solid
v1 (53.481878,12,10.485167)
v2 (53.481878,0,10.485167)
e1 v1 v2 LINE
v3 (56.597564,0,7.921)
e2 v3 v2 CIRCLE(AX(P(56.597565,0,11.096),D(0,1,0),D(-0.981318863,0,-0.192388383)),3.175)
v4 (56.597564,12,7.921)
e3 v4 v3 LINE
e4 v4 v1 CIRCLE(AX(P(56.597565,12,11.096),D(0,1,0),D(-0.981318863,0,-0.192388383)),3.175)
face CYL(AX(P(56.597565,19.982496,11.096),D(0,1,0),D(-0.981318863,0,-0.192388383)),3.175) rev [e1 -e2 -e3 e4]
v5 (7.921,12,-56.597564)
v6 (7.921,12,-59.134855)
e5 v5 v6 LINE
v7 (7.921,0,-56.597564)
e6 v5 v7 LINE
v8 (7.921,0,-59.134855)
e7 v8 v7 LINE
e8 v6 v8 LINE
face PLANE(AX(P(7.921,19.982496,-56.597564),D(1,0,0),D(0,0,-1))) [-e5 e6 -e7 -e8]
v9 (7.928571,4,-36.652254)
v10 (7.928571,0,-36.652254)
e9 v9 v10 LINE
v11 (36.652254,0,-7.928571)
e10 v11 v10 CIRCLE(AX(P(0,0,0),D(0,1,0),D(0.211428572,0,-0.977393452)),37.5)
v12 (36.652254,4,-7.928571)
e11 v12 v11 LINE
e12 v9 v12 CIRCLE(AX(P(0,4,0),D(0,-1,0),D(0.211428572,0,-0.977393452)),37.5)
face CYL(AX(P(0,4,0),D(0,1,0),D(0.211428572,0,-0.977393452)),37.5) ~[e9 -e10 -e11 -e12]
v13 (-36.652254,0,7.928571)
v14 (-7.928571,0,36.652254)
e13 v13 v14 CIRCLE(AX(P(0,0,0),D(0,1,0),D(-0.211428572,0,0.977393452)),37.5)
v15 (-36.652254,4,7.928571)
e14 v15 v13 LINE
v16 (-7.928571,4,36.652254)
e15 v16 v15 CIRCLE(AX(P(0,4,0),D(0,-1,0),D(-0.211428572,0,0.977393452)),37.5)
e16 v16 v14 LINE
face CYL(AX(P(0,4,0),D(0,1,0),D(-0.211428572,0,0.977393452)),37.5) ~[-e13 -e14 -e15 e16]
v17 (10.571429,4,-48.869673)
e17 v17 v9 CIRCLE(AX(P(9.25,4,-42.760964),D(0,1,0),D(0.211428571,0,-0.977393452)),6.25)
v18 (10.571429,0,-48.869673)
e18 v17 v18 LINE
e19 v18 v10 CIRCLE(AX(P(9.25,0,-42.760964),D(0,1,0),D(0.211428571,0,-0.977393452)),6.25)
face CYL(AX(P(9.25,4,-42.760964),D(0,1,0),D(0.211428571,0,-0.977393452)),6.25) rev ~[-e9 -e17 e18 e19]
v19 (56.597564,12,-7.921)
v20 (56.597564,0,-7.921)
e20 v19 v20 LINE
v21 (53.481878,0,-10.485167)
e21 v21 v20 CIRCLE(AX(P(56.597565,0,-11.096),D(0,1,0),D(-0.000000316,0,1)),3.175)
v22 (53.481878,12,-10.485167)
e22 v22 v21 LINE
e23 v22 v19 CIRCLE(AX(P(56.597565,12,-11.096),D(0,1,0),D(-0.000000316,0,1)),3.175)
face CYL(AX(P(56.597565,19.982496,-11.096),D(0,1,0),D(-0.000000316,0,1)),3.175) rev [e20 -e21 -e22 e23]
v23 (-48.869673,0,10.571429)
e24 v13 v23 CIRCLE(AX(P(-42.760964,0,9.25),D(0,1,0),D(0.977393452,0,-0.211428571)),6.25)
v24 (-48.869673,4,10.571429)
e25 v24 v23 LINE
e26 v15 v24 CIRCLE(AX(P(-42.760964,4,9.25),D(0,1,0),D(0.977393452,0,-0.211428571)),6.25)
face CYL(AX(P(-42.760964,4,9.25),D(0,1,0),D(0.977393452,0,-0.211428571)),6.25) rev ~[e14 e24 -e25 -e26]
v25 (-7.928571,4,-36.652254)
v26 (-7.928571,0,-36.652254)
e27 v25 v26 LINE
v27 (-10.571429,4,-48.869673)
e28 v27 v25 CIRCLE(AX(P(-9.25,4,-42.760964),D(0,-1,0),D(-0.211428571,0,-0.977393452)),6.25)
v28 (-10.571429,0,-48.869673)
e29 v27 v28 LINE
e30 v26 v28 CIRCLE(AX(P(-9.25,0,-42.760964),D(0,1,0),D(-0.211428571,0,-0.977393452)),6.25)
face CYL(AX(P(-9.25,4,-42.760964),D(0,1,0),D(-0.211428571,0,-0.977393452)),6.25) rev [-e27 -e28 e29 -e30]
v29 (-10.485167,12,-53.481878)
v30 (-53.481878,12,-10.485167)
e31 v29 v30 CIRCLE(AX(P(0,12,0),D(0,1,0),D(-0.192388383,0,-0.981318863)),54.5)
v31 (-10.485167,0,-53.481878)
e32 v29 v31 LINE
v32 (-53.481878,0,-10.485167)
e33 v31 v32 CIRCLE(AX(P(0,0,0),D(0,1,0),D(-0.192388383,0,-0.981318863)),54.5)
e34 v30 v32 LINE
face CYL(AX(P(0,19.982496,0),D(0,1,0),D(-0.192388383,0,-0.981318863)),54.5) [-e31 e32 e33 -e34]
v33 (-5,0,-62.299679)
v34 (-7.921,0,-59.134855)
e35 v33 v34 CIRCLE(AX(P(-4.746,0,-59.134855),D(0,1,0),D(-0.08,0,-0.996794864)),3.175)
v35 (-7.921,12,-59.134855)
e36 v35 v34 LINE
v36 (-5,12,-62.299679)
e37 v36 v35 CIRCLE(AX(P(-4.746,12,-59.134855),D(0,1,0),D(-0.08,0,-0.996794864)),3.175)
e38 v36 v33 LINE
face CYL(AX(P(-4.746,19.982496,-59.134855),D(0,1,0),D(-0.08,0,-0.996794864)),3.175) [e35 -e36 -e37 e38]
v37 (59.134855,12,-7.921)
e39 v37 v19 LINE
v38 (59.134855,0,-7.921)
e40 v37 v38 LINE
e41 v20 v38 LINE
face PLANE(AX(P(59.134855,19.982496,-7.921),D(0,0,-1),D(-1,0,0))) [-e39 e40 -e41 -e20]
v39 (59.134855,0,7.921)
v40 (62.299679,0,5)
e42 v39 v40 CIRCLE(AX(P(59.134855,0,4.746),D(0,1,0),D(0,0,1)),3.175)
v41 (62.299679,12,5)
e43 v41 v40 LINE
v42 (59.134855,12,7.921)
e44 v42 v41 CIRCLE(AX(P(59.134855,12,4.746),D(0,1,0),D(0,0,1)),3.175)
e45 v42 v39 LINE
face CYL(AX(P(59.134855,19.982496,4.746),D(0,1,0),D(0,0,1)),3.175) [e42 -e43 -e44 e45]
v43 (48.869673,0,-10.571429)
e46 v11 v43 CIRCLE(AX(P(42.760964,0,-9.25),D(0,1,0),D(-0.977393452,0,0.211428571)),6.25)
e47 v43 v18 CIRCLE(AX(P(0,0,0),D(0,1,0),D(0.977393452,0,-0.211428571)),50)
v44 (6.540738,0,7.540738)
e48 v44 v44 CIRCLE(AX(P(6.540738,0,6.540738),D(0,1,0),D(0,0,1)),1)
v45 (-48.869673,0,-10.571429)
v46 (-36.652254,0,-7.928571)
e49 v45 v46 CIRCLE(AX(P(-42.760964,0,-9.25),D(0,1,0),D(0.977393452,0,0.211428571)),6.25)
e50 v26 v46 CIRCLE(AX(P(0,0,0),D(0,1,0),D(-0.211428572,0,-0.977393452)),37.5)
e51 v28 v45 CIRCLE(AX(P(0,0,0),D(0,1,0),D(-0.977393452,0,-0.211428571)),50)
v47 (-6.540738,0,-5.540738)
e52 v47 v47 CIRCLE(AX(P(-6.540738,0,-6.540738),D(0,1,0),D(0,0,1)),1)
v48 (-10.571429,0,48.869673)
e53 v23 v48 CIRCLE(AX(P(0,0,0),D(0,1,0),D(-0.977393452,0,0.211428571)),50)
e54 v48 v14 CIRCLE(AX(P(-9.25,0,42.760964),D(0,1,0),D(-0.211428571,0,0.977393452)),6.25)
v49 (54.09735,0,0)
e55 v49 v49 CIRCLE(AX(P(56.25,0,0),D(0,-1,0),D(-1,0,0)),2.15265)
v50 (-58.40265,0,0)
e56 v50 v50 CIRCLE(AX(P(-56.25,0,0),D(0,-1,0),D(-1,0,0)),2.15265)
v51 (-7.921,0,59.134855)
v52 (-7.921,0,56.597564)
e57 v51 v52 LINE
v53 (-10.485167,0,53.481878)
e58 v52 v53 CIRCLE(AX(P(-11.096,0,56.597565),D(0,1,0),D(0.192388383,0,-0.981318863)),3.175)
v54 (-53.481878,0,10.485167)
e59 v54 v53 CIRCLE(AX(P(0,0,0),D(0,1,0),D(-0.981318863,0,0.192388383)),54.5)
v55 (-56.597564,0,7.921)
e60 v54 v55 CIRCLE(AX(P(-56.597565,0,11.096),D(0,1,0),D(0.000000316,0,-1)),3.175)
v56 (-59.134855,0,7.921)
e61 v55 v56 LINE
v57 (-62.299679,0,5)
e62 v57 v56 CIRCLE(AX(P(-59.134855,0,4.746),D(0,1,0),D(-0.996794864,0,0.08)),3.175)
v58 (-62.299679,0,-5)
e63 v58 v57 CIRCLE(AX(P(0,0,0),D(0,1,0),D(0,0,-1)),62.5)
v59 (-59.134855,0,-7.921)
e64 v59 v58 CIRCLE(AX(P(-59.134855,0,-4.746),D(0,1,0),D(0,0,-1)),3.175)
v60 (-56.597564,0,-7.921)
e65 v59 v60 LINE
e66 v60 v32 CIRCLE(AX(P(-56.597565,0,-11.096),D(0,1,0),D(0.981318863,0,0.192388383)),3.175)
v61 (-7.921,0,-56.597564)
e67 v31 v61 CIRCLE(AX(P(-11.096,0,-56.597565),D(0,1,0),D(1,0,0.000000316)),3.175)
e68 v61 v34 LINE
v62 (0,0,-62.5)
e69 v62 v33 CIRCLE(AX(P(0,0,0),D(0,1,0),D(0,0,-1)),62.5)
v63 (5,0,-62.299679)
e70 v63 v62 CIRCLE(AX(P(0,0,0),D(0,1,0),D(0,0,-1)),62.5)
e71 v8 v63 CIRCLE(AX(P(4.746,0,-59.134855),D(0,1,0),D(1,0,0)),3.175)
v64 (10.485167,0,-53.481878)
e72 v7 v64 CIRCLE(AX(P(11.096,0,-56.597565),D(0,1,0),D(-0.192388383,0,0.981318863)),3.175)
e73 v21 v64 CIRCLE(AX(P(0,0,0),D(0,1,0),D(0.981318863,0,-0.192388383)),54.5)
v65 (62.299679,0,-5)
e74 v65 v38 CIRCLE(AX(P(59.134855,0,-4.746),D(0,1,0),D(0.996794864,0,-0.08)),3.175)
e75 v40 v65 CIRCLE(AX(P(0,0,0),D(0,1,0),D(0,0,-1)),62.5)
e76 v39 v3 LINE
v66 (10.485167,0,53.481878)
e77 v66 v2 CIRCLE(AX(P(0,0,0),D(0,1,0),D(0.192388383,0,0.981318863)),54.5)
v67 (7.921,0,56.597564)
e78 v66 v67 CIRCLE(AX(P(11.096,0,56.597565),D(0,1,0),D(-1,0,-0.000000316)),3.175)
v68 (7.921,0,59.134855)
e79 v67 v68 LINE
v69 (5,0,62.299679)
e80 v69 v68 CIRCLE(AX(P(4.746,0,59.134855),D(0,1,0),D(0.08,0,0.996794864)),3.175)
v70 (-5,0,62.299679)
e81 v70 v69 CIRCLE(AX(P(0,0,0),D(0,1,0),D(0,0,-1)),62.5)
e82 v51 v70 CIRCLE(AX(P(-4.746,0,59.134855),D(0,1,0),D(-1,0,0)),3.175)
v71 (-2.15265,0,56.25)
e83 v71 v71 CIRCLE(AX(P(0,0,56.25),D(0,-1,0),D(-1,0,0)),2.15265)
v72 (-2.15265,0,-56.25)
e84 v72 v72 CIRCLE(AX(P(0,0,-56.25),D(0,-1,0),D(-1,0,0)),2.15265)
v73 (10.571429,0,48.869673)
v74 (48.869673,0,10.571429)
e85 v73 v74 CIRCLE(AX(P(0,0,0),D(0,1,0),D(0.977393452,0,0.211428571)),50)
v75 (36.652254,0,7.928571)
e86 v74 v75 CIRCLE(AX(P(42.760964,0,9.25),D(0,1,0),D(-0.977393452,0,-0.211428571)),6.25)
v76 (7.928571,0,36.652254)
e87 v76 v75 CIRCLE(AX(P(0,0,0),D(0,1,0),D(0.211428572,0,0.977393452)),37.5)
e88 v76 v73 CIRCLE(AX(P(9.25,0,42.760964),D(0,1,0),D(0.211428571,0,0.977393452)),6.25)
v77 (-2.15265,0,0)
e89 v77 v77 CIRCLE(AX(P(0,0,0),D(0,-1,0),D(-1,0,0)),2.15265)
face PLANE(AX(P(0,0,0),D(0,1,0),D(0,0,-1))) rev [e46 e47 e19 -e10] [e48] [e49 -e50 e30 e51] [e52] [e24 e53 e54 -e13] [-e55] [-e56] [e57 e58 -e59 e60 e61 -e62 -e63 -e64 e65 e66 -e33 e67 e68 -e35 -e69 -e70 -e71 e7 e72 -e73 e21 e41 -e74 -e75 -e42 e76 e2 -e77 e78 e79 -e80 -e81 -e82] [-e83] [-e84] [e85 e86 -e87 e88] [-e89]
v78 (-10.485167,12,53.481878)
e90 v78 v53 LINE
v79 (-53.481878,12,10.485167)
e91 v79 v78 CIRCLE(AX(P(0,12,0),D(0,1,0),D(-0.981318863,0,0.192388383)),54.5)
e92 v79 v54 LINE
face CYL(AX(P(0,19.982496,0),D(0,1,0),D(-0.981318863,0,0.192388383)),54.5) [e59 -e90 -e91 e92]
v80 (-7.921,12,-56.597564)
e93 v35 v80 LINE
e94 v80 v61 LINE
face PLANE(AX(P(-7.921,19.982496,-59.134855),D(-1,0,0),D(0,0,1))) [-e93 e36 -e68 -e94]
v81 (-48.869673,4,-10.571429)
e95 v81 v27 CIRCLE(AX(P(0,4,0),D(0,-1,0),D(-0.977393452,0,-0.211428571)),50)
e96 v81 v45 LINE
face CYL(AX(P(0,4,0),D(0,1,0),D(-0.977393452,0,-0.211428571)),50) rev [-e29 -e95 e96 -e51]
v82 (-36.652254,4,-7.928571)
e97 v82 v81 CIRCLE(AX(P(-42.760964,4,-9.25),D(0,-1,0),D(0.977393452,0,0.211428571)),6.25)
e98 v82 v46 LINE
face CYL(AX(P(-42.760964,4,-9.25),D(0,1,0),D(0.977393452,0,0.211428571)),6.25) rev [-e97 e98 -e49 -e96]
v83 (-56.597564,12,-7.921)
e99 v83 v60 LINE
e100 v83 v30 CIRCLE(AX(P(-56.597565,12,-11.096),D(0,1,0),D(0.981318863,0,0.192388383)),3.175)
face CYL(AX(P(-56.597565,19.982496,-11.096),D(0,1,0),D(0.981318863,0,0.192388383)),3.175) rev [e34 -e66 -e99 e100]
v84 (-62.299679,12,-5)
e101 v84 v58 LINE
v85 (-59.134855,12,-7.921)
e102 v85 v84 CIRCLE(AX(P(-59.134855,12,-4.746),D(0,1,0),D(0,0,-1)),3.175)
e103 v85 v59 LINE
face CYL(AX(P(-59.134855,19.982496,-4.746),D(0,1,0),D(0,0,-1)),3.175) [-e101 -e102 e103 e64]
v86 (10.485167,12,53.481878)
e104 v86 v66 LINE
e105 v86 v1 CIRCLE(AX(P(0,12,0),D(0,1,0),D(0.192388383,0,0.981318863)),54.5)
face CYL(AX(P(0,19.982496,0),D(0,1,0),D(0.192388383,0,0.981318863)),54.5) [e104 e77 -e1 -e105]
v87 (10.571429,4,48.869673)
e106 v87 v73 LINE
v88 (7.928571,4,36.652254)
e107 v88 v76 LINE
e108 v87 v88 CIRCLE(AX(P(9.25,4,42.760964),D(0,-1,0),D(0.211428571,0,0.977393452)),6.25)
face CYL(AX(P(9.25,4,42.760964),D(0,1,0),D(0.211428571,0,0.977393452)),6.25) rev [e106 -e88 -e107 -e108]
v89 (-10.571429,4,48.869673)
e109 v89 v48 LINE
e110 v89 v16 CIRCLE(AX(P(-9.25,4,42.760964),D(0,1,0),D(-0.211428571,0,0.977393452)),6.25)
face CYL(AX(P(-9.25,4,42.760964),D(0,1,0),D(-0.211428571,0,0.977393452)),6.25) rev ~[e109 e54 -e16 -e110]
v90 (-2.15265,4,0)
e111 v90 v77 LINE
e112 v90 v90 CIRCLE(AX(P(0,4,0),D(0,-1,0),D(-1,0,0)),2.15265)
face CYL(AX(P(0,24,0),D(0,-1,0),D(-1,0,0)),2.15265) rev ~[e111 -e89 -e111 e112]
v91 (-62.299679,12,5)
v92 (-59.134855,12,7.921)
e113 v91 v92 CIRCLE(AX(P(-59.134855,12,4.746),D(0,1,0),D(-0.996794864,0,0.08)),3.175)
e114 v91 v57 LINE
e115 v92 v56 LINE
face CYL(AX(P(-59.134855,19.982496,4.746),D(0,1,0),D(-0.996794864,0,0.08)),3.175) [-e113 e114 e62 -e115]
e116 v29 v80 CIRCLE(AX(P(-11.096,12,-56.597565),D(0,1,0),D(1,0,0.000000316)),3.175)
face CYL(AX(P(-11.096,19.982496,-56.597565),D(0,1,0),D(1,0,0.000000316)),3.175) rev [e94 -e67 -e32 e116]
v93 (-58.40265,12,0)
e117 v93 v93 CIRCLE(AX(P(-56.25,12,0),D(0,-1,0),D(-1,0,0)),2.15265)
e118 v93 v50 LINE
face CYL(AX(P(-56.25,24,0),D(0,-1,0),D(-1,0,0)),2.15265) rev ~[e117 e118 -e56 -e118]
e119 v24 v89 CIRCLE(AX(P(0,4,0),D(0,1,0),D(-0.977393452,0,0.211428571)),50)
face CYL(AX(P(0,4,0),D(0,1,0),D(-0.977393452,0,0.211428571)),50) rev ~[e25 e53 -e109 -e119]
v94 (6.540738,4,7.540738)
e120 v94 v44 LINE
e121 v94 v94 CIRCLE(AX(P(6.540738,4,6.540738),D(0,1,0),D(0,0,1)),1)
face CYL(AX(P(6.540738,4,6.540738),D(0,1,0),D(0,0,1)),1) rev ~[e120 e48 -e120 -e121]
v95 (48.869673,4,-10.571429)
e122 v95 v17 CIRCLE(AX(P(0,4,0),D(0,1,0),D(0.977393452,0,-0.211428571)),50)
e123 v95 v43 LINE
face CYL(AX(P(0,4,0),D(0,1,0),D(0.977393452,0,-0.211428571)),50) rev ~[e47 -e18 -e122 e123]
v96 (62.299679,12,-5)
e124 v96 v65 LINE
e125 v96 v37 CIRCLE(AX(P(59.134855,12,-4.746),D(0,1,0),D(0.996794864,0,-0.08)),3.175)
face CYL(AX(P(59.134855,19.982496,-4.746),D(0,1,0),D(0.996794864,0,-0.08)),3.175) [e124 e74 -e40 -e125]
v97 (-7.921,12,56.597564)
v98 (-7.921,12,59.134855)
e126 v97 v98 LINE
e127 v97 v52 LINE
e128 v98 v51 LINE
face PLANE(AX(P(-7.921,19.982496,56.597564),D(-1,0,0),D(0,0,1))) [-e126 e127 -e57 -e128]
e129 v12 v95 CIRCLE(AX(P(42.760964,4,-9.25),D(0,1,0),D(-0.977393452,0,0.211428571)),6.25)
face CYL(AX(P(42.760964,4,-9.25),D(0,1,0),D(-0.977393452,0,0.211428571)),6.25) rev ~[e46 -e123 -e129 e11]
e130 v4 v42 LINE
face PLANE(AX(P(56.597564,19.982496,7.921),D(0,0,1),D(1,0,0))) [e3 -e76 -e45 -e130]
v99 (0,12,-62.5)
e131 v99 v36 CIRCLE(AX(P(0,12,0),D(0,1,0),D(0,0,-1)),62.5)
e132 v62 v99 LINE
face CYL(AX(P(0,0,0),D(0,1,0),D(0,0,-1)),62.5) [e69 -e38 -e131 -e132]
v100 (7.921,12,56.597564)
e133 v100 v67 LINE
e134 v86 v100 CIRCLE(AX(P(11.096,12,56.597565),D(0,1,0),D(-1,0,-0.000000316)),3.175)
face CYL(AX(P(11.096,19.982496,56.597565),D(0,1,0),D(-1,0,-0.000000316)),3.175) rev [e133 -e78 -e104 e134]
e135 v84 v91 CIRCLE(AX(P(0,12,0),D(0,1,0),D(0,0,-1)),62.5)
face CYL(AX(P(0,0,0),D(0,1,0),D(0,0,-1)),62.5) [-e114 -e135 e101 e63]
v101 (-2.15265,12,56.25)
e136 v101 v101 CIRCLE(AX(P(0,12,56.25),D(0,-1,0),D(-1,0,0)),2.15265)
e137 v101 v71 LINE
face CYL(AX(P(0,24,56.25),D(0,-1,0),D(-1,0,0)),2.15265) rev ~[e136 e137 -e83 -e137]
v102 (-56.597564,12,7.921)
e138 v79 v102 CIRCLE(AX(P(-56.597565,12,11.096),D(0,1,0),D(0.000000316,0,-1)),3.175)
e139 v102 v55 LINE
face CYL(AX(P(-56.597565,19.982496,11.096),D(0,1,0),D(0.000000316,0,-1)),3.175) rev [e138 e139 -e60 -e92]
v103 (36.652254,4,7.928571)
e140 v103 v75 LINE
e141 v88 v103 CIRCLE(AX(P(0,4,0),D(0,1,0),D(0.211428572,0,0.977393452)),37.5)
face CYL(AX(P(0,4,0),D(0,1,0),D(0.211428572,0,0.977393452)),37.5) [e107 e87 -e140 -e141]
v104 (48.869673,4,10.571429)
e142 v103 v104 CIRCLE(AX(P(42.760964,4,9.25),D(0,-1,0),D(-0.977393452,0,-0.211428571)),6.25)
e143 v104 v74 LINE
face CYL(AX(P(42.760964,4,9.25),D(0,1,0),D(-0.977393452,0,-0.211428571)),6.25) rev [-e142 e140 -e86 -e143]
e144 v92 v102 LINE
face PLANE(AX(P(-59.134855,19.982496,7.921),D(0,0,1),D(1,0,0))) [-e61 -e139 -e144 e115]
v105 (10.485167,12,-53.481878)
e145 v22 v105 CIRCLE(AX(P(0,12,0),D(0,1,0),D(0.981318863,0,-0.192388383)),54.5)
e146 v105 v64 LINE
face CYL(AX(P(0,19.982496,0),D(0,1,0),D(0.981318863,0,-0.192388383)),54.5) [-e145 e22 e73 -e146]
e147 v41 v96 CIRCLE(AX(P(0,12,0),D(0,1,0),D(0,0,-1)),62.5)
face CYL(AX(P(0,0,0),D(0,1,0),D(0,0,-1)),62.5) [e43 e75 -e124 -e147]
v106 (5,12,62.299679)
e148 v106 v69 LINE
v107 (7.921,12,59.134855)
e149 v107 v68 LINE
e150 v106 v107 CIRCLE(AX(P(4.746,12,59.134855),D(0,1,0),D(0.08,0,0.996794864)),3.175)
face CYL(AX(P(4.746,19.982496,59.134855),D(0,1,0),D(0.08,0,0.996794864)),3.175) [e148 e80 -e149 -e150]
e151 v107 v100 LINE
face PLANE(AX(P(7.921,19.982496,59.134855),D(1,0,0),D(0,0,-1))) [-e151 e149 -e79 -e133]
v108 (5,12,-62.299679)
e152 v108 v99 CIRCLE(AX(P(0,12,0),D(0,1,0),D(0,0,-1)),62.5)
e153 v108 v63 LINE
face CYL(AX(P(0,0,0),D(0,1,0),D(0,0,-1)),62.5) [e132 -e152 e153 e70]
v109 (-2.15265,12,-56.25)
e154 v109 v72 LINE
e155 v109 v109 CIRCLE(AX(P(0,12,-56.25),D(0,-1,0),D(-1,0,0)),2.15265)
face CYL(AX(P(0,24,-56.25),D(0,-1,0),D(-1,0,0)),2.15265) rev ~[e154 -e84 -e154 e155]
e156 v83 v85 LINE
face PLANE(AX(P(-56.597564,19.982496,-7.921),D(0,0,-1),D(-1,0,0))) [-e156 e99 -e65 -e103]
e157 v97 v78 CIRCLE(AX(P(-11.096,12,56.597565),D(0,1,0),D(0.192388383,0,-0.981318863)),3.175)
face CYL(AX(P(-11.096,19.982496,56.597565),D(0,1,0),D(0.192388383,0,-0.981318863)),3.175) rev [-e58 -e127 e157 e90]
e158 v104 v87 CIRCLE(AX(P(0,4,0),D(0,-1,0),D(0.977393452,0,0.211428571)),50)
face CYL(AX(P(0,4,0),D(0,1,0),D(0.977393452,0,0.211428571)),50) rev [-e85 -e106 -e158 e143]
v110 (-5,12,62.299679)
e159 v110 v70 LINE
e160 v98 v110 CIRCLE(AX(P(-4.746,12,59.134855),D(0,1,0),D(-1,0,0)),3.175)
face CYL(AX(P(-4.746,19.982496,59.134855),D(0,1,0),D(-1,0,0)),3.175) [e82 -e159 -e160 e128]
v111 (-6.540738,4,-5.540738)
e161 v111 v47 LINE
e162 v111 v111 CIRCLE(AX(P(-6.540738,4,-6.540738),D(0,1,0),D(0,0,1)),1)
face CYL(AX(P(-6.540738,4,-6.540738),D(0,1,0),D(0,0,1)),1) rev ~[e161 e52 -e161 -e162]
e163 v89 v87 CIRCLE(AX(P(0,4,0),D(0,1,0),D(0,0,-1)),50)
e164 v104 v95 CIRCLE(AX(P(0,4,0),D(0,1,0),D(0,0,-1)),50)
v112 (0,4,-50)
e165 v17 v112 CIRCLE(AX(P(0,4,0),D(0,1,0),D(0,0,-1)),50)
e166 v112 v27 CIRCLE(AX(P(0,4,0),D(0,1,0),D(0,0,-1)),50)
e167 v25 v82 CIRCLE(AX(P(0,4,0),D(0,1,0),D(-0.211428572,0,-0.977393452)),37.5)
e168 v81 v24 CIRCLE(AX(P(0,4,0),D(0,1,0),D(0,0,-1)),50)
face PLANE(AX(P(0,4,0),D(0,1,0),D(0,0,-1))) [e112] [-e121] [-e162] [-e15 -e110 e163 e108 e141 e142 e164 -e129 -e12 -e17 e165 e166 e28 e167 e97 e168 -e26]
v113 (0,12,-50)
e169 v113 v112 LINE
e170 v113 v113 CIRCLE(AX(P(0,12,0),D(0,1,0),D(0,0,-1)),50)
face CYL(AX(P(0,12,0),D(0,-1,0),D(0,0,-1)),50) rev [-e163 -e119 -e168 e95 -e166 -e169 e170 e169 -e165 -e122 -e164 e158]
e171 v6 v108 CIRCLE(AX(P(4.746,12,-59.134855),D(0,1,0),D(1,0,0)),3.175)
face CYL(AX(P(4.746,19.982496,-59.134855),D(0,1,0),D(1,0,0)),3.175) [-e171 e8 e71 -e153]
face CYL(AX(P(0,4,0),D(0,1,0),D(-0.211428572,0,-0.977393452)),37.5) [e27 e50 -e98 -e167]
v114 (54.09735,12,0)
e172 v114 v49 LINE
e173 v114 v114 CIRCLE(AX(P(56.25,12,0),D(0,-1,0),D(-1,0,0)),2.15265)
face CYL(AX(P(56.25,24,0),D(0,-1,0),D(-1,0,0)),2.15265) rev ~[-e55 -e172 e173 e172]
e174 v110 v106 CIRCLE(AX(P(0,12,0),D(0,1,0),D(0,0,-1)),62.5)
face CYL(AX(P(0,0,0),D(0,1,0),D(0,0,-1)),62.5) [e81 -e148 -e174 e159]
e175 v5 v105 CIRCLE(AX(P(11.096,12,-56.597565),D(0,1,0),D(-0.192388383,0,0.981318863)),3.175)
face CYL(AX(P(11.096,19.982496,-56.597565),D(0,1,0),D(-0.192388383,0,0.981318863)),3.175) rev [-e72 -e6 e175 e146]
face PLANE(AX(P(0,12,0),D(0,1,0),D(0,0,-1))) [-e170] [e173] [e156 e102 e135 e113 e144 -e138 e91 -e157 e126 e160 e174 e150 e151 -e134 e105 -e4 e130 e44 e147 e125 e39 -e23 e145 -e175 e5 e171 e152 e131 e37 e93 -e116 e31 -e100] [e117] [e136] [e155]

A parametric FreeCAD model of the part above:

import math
import FreeCAD as App
import Part
import Sketcher


def add_polygon(sketch, points):
    """Adds a closed chain of lines whose ends are joined by coincident constraints."""
    first, n = sketch.GeometryCount, len(points)
    for a, b in zip(points, points[1:] + points[:1]):
        sketch.addGeometry(Part.LineSegment(App.Vector(*a, 0), App.Vector(*b, 0)), False)
    for i in range(n):
        sketch.addConstraint(Sketcher.Constraint("Coincident", first + i, 2, first + (i + 1) % n, 1))

doc = App.newDocument("Part")
params = doc.addObject("Spreadsheet::Sheet", "Params")
for row, (alias, value) in enumerate([
    ("sketch1_width", "50 mm"),
    ("sketch1_height", "12 mm"),
    ("sketch1_height2", "8 mm"),
    ("sketch1_width2", "62.5 mm"),
    ("revolution_angle", "360 deg"),
    ("sketch2_diameter", "4 mm"),
    ("sketch3_diameter", "2 mm"),
    ("sketch4_diameter", "2 mm"),
    ("sketch5_radius", "50 mm"),
    ("sketch5_radius2", "37.5 mm"),
    ("sketch6_radius", "50 mm"),
    ("sketch6_radius2", "37.5 mm"),
    ("sketch7_radius", "50 mm"),
    ("sketch7_radius2", "37.5 mm"),
    ("sketch8_radius", "50 mm"),
    ("sketch8_radius2", "37.5 mm"),
    ("hole_diameter", "4.3053 mm"),
    ("hole_depth", "12 mm"),
    ("sketch10_radius", "54.5 mm"),
    ("sketch10_radius2", "62.5 mm"),
    ("pocket8_length", "28 mm"),
], start=1):
    params.set(f"A{row}", alias)
    params.set(f"B{row}", "=" + value)
    params.setAlias(f"B{row}", alias)

body = doc.addObject("PartDesign::Body", "Body")

# Sketch on XY plane
sketch1 = body.newObject("Sketcher::SketchObject", "Sketch")
sketch1.AttachmentSupport = (doc.getObject("XY_Plane"), [""])
sketch1.MapMode = "FlatFace"
add_polygon(sketch1, [(0, 0), (62.5, 0), (62.5, 12), (50, 12), (50, 4), (0, 4)])  # lines 0-5
sketch1.addConstraint([
    Sketcher.Constraint("Horizontal", 0),
    Sketcher.Constraint("Vertical", 1),
    Sketcher.Constraint("Horizontal", 2),
    Sketcher.Constraint("Vertical", 3),
    Sketcher.Constraint("Horizontal", 4),
    Sketcher.Constraint("Vertical", 5),
    Sketcher.Constraint("Coincident", 5, 2, -1, 1),
    Sketcher.Constraint("DistanceX", 4, 2, 4, 1, 50.0),
    Sketcher.Constraint("DistanceY", 1, 1, 1, 2, 12.0),
    Sketcher.Constraint("DistanceY", 3, 2, 3, 1, 8.0),
    Sketcher.Constraint("DistanceX", 0, 1, 0, 2, 62.5),
])
sketch1.setExpression("Constraints[13]", "Params.sketch1_width")
sketch1.setExpression("Constraints[14]", "Params.sketch1_height")
sketch1.setExpression("Constraints[15]", "Params.sketch1_height2")
sketch1.setExpression("Constraints[16]", "Params.sketch1_width2")
revolution = body.newObject("PartDesign::Revolution", "Revolution")
revolution.Profile = sketch1
revolution.ReferenceAxis = (sketch1, ["V_Axis"])
revolution.setExpression("Angle", "Params.revolution_angle")

# Sketch on XZ plane
sketch2 = body.newObject("Sketcher::SketchObject", "Sketch001")
sketch2.AttachmentSupport = (doc.getObject("XZ_Plane"), [""])
sketch2.MapMode = "FlatFace"
sketch2.AttachmentOffset = App.Placement(App.Vector(0, 0, -4), App.Rotation())
sketch2.addGeometry(Part.Circle(App.Vector(0, 0, 0), App.Vector(0, 0, 1), 2), False)
sketch2.addConstraint([
    Sketcher.Constraint("Coincident", 0, 3, -1, 1),
    Sketcher.Constraint("Diameter", 0, 4.0),
])
sketch2.setExpression("Constraints[1]", "Params.sketch2_diameter")
pocket1 = body.newObject("PartDesign::Pocket", "Pocket")
pocket1.Profile = sketch2
pocket1.Type = "UpToFirst"
pocket1.Reversed = True

# Sketch on XZ plane
sketch3 = body.newObject("Sketcher::SketchObject", "Sketch002")
sketch3.AttachmentSupport = (doc.getObject("XZ_Plane"), [""])
sketch3.MapMode = "FlatFace"
sketch3.AttachmentOffset = App.Placement(App.Vector(0, 0, -4), App.Rotation())
sketch3.addGeometry(Part.Circle(App.Vector(6.5, 6.5, 0), App.Vector(0, 0, 1), 1), False)
sketch3.addConstraint([
    Sketcher.Constraint("Diameter", 0, 2.0),
    Sketcher.Constraint("DistanceX", -1, 1, 0, 3, 6.540738),
    Sketcher.Constraint("DistanceY", -1, 1, 0, 3, 6.540738),
])
sketch3.setExpression("Constraints[0]", "Params.sketch3_diameter")
pocket2 = body.newObject("PartDesign::Pocket", "Pocket001")
pocket2.Profile = sketch3
pocket2.Type = "UpToFirst"
pocket2.Reversed = True

# Sketch on XZ plane
sketch4 = body.newObject("Sketcher::SketchObject", "Sketch003")
sketch4.AttachmentSupport = (doc.getObject("XZ_Plane"), [""])
sketch4.MapMode = "FlatFace"
sketch4.AttachmentOffset = App.Placement(App.Vector(0, 0, -4), App.Rotation())
sketch4.addGeometry(Part.Circle(App.Vector(-6.5, -6.5, 0), App.Vector(0, 0, 1), 1), False)
sketch4.addConstraint([
    Sketcher.Constraint("Diameter", 0, 2.0),
    Sketcher.Constraint("DistanceX", 0, 3, -1, 1, 6.540738),
    Sketcher.Constraint("DistanceY", 0, 3, -1, 1, 6.540738),
])
sketch4.setExpression("Constraints[0]", "Params.sketch4_diameter")
pocket3 = body.newObject("PartDesign::Pocket", "Pocket002")
pocket3.Profile = sketch4
pocket3.Type = "UpToFirst"
pocket3.Reversed = True

# Sketch on XZ plane
sketch5 = body.newObject("Sketcher::SketchObject", "Sketch004")
sketch5.AttachmentSupport = (doc.getObject("XZ_Plane"), [""])
sketch5.MapMode = "FlatFace"
sketch5.AttachmentOffset = App.Placement(App.Vector(0, 0, -4), App.Rotation())
sketch5.addGeometry([
    Part.ArcOfCircle(Part.Circle(App.Vector(0, 0, 0), App.Vector(0, 0, 1), 50), math.radians(-78), math.radians(-12)),
    Part.ArcOfCircle(Part.Circle(App.Vector(9, -43, 0), App.Vector(0, 0, 1), 6), math.radians(102), math.radians(282)),
    Part.ArcOfCircle(Part.Circle(App.Vector(0, 0, 0), App.Vector(0, 0, 1), 38), math.radians(-78), math.radians(-12)),
    Part.ArcOfCircle(Part.Circle(App.Vector(43, -9, 0), App.Vector(0, 0, 1), 6), math.radians(-12), math.radians(168)),
], False)
sketch5.addConstraint([
    Sketcher.Constraint("Tangent", 0, 1, 1, 2),
    Sketcher.Constraint("Tangent", 1, 1, 2, 1),
    Sketcher.Constraint("Tangent", 2, 2, 3, 2),
    Sketcher.Constraint("Tangent", 3, 1, 0, 2),
    Sketcher.Constraint("Coincident", 0, 3, -1, 1),
    Sketcher.Constraint("Coincident", 2, 3, -1, 1),
    Sketcher.Constraint("Radius", 0, 50.0),
    Sketcher.Constraint("Radius", 2, 37.5),
    Sketcher.Constraint("DistanceX", -1, 1, 1, 3, 9.25),
    Sketcher.Constraint("DistanceY", 3, 3, -1, 1, 9.25),
])
sketch5.setExpression("Constraints[6]", "Params.sketch5_radius")
sketch5.setExpression("Constraints[7]", "Params.sketch5_radius2")
pocket4 = body.newObject("PartDesign::Pocket", "Pocket003")
pocket4.Profile = sketch5
pocket4.Type = "UpToFirst"
pocket4.Reversed = True

# Sketch on XZ plane
sketch6 = body.newObject("Sketcher::SketchObject", "Sketch005")
sketch6.AttachmentSupport = (doc.getObject("XZ_Plane"), [""])
sketch6.MapMode = "FlatFace"
sketch6.AttachmentOffset = App.Placement(App.Vector(0, 0, -4), App.Rotation())
sketch6.addGeometry([
    Part.ArcOfCircle(Part.Circle(App.Vector(0, 0, 0), App.Vector(0, 0, 1), 50), math.radians(-168), math.radians(-102)),
    Part.ArcOfCircle(Part.Circle(App.Vector(-43, -9, 0), App.Vector(0, 0, 1), 6), math.radians(12), math.radians(192)),
    Part.ArcOfCircle(Part.Circle(App.Vector(0, 0, 0), App.Vector(0, 0, 1), 38), math.radians(-168), math.radians(-102)),
    Part.ArcOfCircle(Part.Circle(App.Vector(-9, -43, 0), App.Vector(0, 0, 1), 6), math.radians(-102), math.radians(78)),
], False)
sketch6.addConstraint([
    Sketcher.Constraint("Tangent", 0, 1, 1, 2),
    Sketcher.Constraint("Tangent", 1, 1, 2, 1),
    Sketcher.Constraint("Tangent", 2, 2, 3, 2),
    Sketcher.Constraint("Tangent", 3, 1, 0, 2),
    Sketcher.Constraint("Coincident", 0, 3, -1, 1),
    Sketcher.Constraint("Coincident", 2, 3, -1, 1),
    Sketcher.Constraint("Radius", 0, 50.0),
    Sketcher.Constraint("Radius", 2, 37.5),
    Sketcher.Constraint("DistanceY", 1, 3, -1, 1, 9.25),
    Sketcher.Constraint("DistanceX", 3, 3, -1, 1, 9.25),
])
sketch6.setExpression("Constraints[6]", "Params.sketch6_radius")
sketch6.setExpression("Constraints[7]", "Params.sketch6_radius2")
pocket5 = body.newObject("PartDesign::Pocket", "Pocket004")
pocket5.Profile = sketch6
pocket5.Type = "UpToFirst"
pocket5.Reversed = True

# Sketch on XZ plane
sketch7 = body.newObject("Sketcher::SketchObject", "Sketch006")
sketch7.AttachmentSupport = (doc.getObject("XZ_Plane"), [""])
sketch7.MapMode = "FlatFace"
sketch7.AttachmentOffset = App.Placement(App.Vector(0, 0, -4), App.Rotation())
sketch7.addGeometry([
    Part.ArcOfCircle(Part.Circle(App.Vector(0, 0, 0), App.Vector(0, 0, 1), 50), math.radians(12), math.radians(78)),
    Part.ArcOfCircle(Part.Circle(App.Vector(43, 9, 0), App.Vector(0, 0, 1), 6), math.radians(-168), math.radians(12)),
    Part.ArcOfCircle(Part.Circle(App.Vector(0, 0, 0), App.Vector(0, 0, 1), 38), math.radians(12), math.radians(78)),
    Part.ArcOfCircle(Part.Circle(App.Vector(9, 43, 0), App.Vector(0, 0, 1), 6), math.radians(78), math.radians(258)),
], False)
sketch7.addConstraint([
    Sketcher.Constraint("Tangent", 0, 1, 1, 2),
    Sketcher.Constraint("Tangent", 1, 1, 2, 1),
    Sketcher.Constraint("Tangent", 2, 2, 3, 2),
    Sketcher.Constraint("Tangent", 3, 1, 0, 2),
    Sketcher.Constraint("Coincident", 0, 3, -1, 1),
    Sketcher.Constraint("Coincident", 2, 3, -1, 1),
    Sketcher.Constraint("Radius", 0, 50.0),
    Sketcher.Constraint("Radius", 2, 37.5),
    Sketcher.Constraint("DistanceY", -1, 1, 1, 3, 9.25),
    Sketcher.Constraint("DistanceX", -1, 1, 3, 3, 9.25),
])
sketch7.setExpression("Constraints[6]", "Params.sketch7_radius")
sketch7.setExpression("Constraints[7]", "Params.sketch7_radius2")
pocket6 = body.newObject("PartDesign::Pocket", "Pocket005")
pocket6.Profile = sketch7
pocket6.Type = "UpToFirst"
pocket6.Reversed = True

# Sketch on XZ plane
sketch8 = body.newObject("Sketcher::SketchObject", "Sketch007")
sketch8.AttachmentSupport = (doc.getObject("XZ_Plane"), [""])
sketch8.MapMode = "FlatFace"
sketch8.AttachmentOffset = App.Placement(App.Vector(0, 0, -4), App.Rotation())
sketch8.addGeometry([
    Part.ArcOfCircle(Part.Circle(App.Vector(0, 0, 0), App.Vector(0, 0, 1), 50), math.radians(102), math.radians(168)),
    Part.ArcOfCircle(Part.Circle(App.Vector(-9, 43, 0), App.Vector(0, 0, 1), 6), math.radians(-78), math.radians(102)),
    Part.ArcOfCircle(Part.Circle(App.Vector(0, 0, 0), App.Vector(0, 0, 1), 38), math.radians(102), math.radians(168)),
    Part.ArcOfCircle(Part.Circle(App.Vector(-43, 9, 0), App.Vector(0, 0, 1), 6), math.radians(168), math.radians(348)),
], False)
sketch8.addConstraint([
    Sketcher.Constraint("Tangent", 0, 1, 1, 2),
    Sketcher.Constraint("Tangent", 1, 1, 2, 1),
    Sketcher.Constraint("Tangent", 2, 2, 3, 2),
    Sketcher.Constraint("Tangent", 3, 1, 0, 2),
    Sketcher.Constraint("Coincident", 0, 3, -1, 1),
    Sketcher.Constraint("Coincident", 2, 3, -1, 1),
    Sketcher.Constraint("Radius", 0, 50.0),
    Sketcher.Constraint("Radius", 2, 37.5),
    Sketcher.Constraint("DistanceX", 1, 3, -1, 1, 9.25),
    Sketcher.Constraint("DistanceY", -1, 1, 3, 3, 9.25),
])
sketch8.setExpression("Constraints[6]", "Params.sketch8_radius")
sketch8.setExpression("Constraints[7]", "Params.sketch8_radius2")
pocket7 = body.newObject("PartDesign::Pocket", "Pocket006")
pocket7.Profile = sketch8
pocket7.Type = "UpToFirst"
pocket7.Reversed = True

# Sketch on XZ plane
sketch9 = body.newObject("Sketcher::SketchObject", "Sketch008")
sketch9.AttachmentSupport = (doc.getObject("XZ_Plane"), [""])
sketch9.MapMode = "FlatFace"
sketch9.AttachmentOffset = App.Placement(App.Vector(0, 0, -12), App.Rotation())
sketch9.addGeometry([
    Part.Circle(App.Vector(0, -56.2, 0), App.Vector(0, 0, 1), 2.2),  # 0
    Part.Circle(App.Vector(56.2, 0, 0), App.Vector(0, 0, 1), 2.2),  # 1
    Part.Circle(App.Vector(0, 56.2, 0), App.Vector(0, 0, 1), 2.2),  # 2
    Part.Circle(App.Vector(-56.2, 0, 0), App.Vector(0, 0, 1), 2.2),  # 3
    Part.Circle(App.Vector(0, 0, 0), App.Vector(0, 0, 1), 2.2),  # 4
], False)
sketch9.addConstraint([
    Sketcher.Constraint("Coincident", 4, 3, -1, 1),
    Sketcher.Constraint("Equal", 0, 1),
    Sketcher.Constraint("Equal", 1, 2),
    Sketcher.Constraint("Equal", 2, 3),
    Sketcher.Constraint("Equal", 3, 4),
    Sketcher.Constraint("Symmetric", 0, 3, 2, 3, -1, 1),
    Sketcher.Constraint("Symmetric", 1, 3, 3, 3, -1, 1),
    Sketcher.Constraint("PointOnObject", 0, 3, -2),
    Sketcher.Constraint("PointOnObject", 1, 3, -1),
    Sketcher.Constraint("Diameter", 0, 4.3053),
    Sketcher.Constraint("DistanceY", 0, 3, 2, 3, 112.5),
    Sketcher.Constraint("DistanceX", 3, 3, 1, 3, 112.5),
])
doc.recompute()
hole = body.newObject("PartDesign::Hole", "Hole")
hole.Profile = sketch9
hole.ThreadType = "None"
hole.setExpression("Diameter", "Params.hole_diameter")
hole.DepthType = "Dimension"
hole.setExpression("Depth", "Params.hole_depth")
hole.DrillPoint = "Flat"
hole.Reversed = True

# Sketch on XZ plane
sketch10 = body.newObject("Sketcher::SketchObject", "Sketch009")
sketch10.AttachmentSupport = (doc.getObject("XZ_Plane"), [""])
sketch10.MapMode = "FlatFace"
sketch10.AttachmentOffset = App.Placement(App.Vector(0, 0, -19.982496), App.Rotation())
sketch10.addGeometry([
    Part.LineSegment(App.Vector(-59.1, -7.9, 0), App.Vector(-56.6, -7.9, 0)),  # 0
    Part.ArcOfCircle(Part.Circle(App.Vector(-56.6, -11.1, 0), App.Vector(0, 0, 1), 3.2), math.radians(11), math.radians(90)),  # 1
    Part.ArcOfCircle(Part.Circle(App.Vector(0, 0, 0), App.Vector(0, 0, 1), 54.5), math.radians(-169), math.radians(-101)),  # 2
    Part.ArcOfCircle(Part.Circle(App.Vector(-11.1, -56.6, 0), App.Vector(0, 0, 1), 3.2), math.radians(0), math.radians(79)),  # 3
    Part.LineSegment(App.Vector(-7.9, -56.6, 0), App.Vector(-7.9, -59.1, 0)),  # 4
    Part.ArcOfCircle(Part.Circle(App.Vector(-4.7, -59.1, 0), App.Vector(0, 0, 1), 3.2), math.radians(180), math.radians(265)),  # 5
    Part.ArcOfCircle(Part.Circle(App.Vector(0, 0, 0), App.Vector(0, 0, 1), 62.5), math.radians(-175), math.radians(-95)),  # 6
    Part.ArcOfCircle(Part.Circle(App.Vector(-59.1, -4.7, 0), App.Vector(0, 0, 1), 3.2), math.radians(-175), math.radians(-90)),  # 7
    Part.LineSegment(App.Vector(7.9, -59.1, 0), App.Vector(7.9, -56.6, 0)),  # 8
    Part.ArcOfCircle(Part.Circle(App.Vector(11.1, -56.6, 0), App.Vector(0, 0, 1), 3.2), math.radians(101), math.radians(180)),  # 9
    Part.ArcOfCircle(Part.Circle(App.Vector(0, 0, 0), App.Vector(0, 0, 1), 54.5), math.radians(-79), math.radians(-11)),  # 10
    Part.ArcOfCircle(Part.Circle(App.Vector(56.6, -11.1, 0), App.Vector(0, 0, 1), 3.2), math.radians(90), math.radians(169)),  # 11
    Part.LineSegment(App.Vector(56.6, -7.9, 0), App.Vector(59.1, -7.9, 0)),  # 12
    Part.ArcOfCircle(Part.Circle(App.Vector(59.1, -4.7, 0), App.Vector(0, 0, 1), 3.2), math.radians(-90), math.radians(-5)),  # 13
    Part.ArcOfCircle(Part.Circle(App.Vector(0, 0, 0), App.Vector(0, 0, 1), 62.5), math.radians(-85), math.radians(-5)),  # 14
    Part.ArcOfCircle(Part.Circle(App.Vector(4.7, -59.1, 0), App.Vector(0, 0, 1), 3.2), math.radians(-85), math.radians(0)),  # 15
    Part.LineSegment(App.Vector(59.1, 7.9, 0), App.Vector(56.6, 7.9, 0)),  # 16
    Part.ArcOfCircle(Part.Circle(App.Vector(56.6, 11.1, 0), App.Vector(0, 0, 1), 3.2), math.radians(-169), math.radians(-90)),  # 17
    Part.ArcOfCircle(Part.Circle(App.Vector(0, 0, 0), App.Vector(0, 0, 1), 54.5), math.radians(11), math.radians(79)),  # 18
    Part.ArcOfCircle(Part.Circle(App.Vector(11.1, 56.6, 0), App.Vector(0, 0, 1), 3.2), math.radians(-180), math.radians(-101)),  # 19
    Part.LineSegment(App.Vector(7.9, 56.6, 0), App.Vector(7.9, 59.1, 0)),  # 20
    Part.ArcOfCircle(Part.Circle(App.Vector(4.7, 59.1, 0), App.Vector(0, 0, 1), 3.2), math.radians(0), math.radians(85)),  # 21
    Part.ArcOfCircle(Part.Circle(App.Vector(0, 0, 0), App.Vector(0, 0, 1), 62.5), math.radians(5), math.radians(85)),  # 22
    Part.ArcOfCircle(Part.Circle(App.Vector(59.1, 4.7, 0), App.Vector(0, 0, 1), 3.2), math.radians(5), math.radians(90)),  # 23
    Part.LineSegment(App.Vector(-7.9, 59.1, 0), App.Vector(-7.9, 56.6, 0)),  # 24
    Part.ArcOfCircle(Part.Circle(App.Vector(-11.1, 56.6, 0), App.Vector(0, 0, 1), 3.2), math.radians(-79), math.radians(0)),  # 25
    Part.ArcOfCircle(Part.Circle(App.Vector(0, 0, 0), App.Vector(0, 0, 1), 54.5), math.radians(101), math.radians(169)),  # 26
    Part.ArcOfCircle(Part.Circle(App.Vector(-56.6, 11.1, 0), App.Vector(0, 0, 1), 3.2), math.radians(-90), math.radians(-11)),  # 27
    Part.LineSegment(App.Vector(-56.6, 7.9, 0), App.Vector(-59.1, 7.9, 0)),  # 28
    Part.ArcOfCircle(Part.Circle(App.Vector(-59.1, 4.7, 0), App.Vector(0, 0, 1), 3.2), math.radians(90), math.radians(175)),  # 29
    Part.ArcOfCircle(Part.Circle(App.Vector(0, 0, 0), App.Vector(0, 0, 1), 62.5), math.radians(95), math.radians(175)),  # 30
    Part.ArcOfCircle(Part.Circle(App.Vector(-4.7, 59.1, 0), App.Vector(0, 0, 1), 3.2), math.radians(95), math.radians(180)),  # 31
], False)
sketch10.addConstraint([
    Sketcher.Constraint("Tangent", 0, 2, 1, 2),
    Sketcher.Constraint("Tangent", 1, 1, 2, 1),
    Sketcher.Constraint("Tangent", 2, 2, 3, 2),
    Sketcher.Constraint("Tangent", 3, 1, 4, 1),
    Sketcher.Constraint("Tangent", 4, 2, 5, 1),
    Sketcher.Constraint("Tangent", 5, 2, 6, 2),
    Sketcher.Constraint("Tangent", 6, 1, 7, 1),
    Sketcher.Constraint("Tangent", 7, 2, 0, 1),
    Sketcher.Constraint("Tangent", 8, 2, 9, 2),
    Sketcher.Constraint("Tangent", 9, 1, 10, 1),
    Sketcher.Constraint("Tangent", 10, 2, 11, 2),
    Sketcher.Constraint("Tangent", 11, 1, 12, 1),
    Sketcher.Constraint("Tangent", 12, 2, 13, 1),
    Sketcher.Constraint("Tangent", 13, 2, 14, 2),
    Sketcher.Constraint("Tangent", 14, 1, 15, 1),
    Sketcher.Constraint("Tangent", 15, 2, 8, 1),
    Sketcher.Constraint("Tangent", 16, 2, 17, 2),
    Sketcher.Constraint("Tangent", 17, 1, 18, 1),
    Sketcher.Constraint("Tangent", 18, 2, 19, 2),
    Sketcher.Constraint("Tangent", 19, 1, 20, 1),
    Sketcher.Constraint("Tangent", 20, 2, 21, 1),
    Sketcher.Constraint("Tangent", 21, 2, 22, 2),
    Sketcher.Constraint("Tangent", 22, 1, 23, 1),
    Sketcher.Constraint("Tangent", 23, 2, 16, 1),
    Sketcher.Constraint("Tangent", 24, 2, 25, 2),
    Sketcher.Constraint("Tangent", 25, 1, 26, 1),
    Sketcher.Constraint("Tangent", 26, 2, 27, 2),
    Sketcher.Constraint("Tangent", 27, 1, 28, 1),
    Sketcher.Constraint("Tangent", 28, 2, 29, 1),
    Sketcher.Constraint("Tangent", 29, 2, 30, 2),
    Sketcher.Constraint("Tangent", 30, 1, 31, 1),
    Sketcher.Constraint("Tangent", 31, 2, 24, 1),
    Sketcher.Constraint("Horizontal", 0),
    Sketcher.Constraint("Vertical", 4),
    Sketcher.Constraint("Vertical", 8),
    Sketcher.Constraint("Horizontal", 12),
    Sketcher.Constraint("Horizontal", 16),
    Sketcher.Constraint("Vertical", 20),
    Sketcher.Constraint("Vertical", 24),
    Sketcher.Constraint("Horizontal", 28),
    Sketcher.Constraint("Coincident", 2, 3, -1, 1),
    Sketcher.Constraint("Coincident", 6, 3, -1, 1),
    Sketcher.Constraint("Coincident", 10, 3, -1, 1),
    Sketcher.Constraint("Coincident", 14, 3, -1, 1),
    Sketcher.Constraint("Coincident", 18, 3, -1, 1),
    Sketcher.Constraint("Coincident", 22, 3, -1, 1),
    Sketcher.Constraint("Coincident", 26, 3, -1, 1),
    Sketcher.Constraint("Coincident", 30, 3, -1, 1),
    Sketcher.Constraint("Equal", 1, 3),
    Sketcher.Constraint("Equal", 3, 5),
    Sketcher.Constraint("Equal", 5, 7),
    Sketcher.Constraint("Equal", 7, 9),
    Sketcher.Constraint("Equal", 2, 10),
    Sketcher.Constraint("Equal", 9, 11),
    Sketcher.Constraint("Equal", 11, 13),
    Sketcher.Constraint("Equal", 6, 14),
    Sketcher.Constraint("Equal", 13, 15),
    Sketcher.Constraint("Equal", 15, 17),
    Sketcher.Constraint("Equal", 10, 18),
    Sketcher.Constraint("Equal", 17, 19),
    Sketcher.Constraint("Equal", 19, 21),
    Sketcher.Constraint("Equal", 14, 22),
    Sketcher.Constraint("Equal", 21, 23),
    Sketcher.Constraint("Equal", 23, 25),
    Sketcher.Constraint("Equal", 18, 26),
    Sketcher.Constraint("Equal", 25, 27),
    Sketcher.Constraint("Equal", 27, 29),
    Sketcher.Constraint("Equal", 22, 30),
    Sketcher.Constraint("Equal", 29, 31),
    Sketcher.Constraint("Horizontal", 3, 3, 9, 3),
    Sketcher.Constraint("Horizontal", 1, 3, 11, 3),
    Sketcher.Constraint("Horizontal", 19, 3, 25, 3),
    Sketcher.Constraint("Horizontal", 17, 3, 27, 3),
    Sketcher.Constraint("Vertical", 11, 3, 17, 3),
    Sketcher.Constraint("Vertical", 9, 3, 19, 3),
    Sketcher.Constraint("Equal", 28, 4),
    Sketcher.Constraint("Radius", 2, 54.5),
    Sketcher.Constraint("Radius", 6, 62.5),
    Sketcher.Constraint("DistanceX", 5, 2, -1, 1, 5.0),
    Sketcher.Constraint("Radius", 1, 3.175),
])
sketch10.setExpression("Constraints[76]", "Params.sketch10_radius")
sketch10.setExpression("Constraints[77]", "Params.sketch10_radius2")
pocket8 = body.newObject("PartDesign::Pocket", "Pocket007")
pocket8.Profile = sketch10
pocket8.setExpression("Length", "Params.pocket8_length")
pocket8.Reversed = True

doc.recompute()
